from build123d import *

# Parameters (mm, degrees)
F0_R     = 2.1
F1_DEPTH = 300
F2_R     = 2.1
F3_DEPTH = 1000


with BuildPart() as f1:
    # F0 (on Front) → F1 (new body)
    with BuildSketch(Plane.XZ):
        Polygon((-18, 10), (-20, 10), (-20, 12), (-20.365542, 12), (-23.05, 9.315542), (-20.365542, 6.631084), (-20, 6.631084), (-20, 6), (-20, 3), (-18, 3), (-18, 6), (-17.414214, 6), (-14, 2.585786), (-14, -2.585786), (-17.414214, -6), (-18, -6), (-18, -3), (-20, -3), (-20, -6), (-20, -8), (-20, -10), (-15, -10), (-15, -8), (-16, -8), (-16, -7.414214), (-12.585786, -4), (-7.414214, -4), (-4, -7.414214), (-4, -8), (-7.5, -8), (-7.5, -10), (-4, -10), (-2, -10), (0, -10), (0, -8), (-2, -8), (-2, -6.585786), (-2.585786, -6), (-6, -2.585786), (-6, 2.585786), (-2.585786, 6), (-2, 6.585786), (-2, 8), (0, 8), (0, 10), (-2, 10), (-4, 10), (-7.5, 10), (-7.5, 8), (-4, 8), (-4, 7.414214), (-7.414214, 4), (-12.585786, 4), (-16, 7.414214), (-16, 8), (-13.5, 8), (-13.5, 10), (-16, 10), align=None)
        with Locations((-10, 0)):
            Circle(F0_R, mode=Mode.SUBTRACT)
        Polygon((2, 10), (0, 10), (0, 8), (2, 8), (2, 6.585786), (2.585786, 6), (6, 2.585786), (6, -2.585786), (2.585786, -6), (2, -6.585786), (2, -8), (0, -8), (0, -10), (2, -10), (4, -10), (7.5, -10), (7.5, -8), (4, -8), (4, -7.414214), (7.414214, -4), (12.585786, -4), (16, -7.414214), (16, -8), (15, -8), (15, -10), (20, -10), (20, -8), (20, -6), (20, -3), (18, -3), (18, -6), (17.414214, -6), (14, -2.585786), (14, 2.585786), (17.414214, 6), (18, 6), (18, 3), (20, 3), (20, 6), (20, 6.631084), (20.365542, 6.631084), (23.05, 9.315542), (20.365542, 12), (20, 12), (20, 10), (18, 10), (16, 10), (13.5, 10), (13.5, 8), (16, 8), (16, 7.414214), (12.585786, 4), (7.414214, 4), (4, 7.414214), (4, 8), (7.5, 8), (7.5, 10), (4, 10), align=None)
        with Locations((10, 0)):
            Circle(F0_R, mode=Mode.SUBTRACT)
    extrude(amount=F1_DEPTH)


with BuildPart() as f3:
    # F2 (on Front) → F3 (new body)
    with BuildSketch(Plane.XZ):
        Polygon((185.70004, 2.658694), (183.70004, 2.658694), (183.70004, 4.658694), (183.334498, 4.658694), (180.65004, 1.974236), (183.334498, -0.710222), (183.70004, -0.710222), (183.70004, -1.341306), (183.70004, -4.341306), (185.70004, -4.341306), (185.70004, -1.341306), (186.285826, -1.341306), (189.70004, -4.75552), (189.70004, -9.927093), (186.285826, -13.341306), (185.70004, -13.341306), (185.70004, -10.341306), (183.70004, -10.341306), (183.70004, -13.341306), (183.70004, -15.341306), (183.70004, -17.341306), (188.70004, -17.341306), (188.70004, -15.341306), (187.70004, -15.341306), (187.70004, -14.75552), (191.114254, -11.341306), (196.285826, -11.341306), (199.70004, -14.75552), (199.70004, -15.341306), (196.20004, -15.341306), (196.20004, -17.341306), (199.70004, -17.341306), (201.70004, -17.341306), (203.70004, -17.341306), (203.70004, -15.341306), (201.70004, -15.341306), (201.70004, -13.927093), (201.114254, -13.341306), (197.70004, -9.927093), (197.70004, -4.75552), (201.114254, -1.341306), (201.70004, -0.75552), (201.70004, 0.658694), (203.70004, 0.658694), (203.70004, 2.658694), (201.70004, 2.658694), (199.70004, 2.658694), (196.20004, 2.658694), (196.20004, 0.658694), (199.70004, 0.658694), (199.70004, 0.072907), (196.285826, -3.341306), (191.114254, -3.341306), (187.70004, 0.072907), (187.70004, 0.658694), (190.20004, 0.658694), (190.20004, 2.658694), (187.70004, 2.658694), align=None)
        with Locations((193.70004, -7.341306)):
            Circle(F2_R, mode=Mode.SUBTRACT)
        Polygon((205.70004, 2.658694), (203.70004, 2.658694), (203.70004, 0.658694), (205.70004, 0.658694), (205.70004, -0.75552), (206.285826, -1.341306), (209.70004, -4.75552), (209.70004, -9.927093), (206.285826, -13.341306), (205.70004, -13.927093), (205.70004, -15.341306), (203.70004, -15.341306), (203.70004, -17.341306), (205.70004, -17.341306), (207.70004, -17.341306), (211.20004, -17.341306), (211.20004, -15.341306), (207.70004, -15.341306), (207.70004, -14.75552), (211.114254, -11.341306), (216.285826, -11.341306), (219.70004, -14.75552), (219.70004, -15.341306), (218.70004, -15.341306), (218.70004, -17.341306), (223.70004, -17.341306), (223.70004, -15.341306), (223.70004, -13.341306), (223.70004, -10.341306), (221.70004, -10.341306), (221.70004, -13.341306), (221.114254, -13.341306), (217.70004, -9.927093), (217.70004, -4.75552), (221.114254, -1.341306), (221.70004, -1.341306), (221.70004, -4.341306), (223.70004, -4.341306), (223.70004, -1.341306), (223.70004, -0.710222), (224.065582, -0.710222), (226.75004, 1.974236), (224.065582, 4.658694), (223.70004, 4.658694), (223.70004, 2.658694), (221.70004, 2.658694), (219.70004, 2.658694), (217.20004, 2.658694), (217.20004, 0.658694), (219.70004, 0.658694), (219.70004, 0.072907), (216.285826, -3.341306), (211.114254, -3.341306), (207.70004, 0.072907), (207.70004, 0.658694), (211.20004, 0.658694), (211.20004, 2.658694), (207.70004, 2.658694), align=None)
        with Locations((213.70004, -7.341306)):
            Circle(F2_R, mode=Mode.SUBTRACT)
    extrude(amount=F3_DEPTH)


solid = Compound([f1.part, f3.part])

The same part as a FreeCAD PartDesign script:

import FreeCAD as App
import Part
import Sketcher

doc = App.newDocument("Part")
body = doc.addObject("PartDesign::Body", "Body")

# Sketch on XZ plane
sketch1 = doc.addObject("Sketcher::SketchObject", "Sketch")
body.addObject(sketch1)
sketch1.AttachmentSupport = (doc.XZ_Plane, [""])
sketch1.MapMode = "FlatFace"
sketch1.addGeometry([
    Part.LineSegment(App.Vector(-20, 10, 0), App.Vector(-20, 12, 0)),  # 0
    Part.LineSegment(App.Vector(-20, 12, 0), App.Vector(-20.37, 12, 0)),  # 1
    Part.LineSegment(App.Vector(-20.37, 12, 0), App.Vector(-23.05, 9.32, 0)),  # 2
    Part.LineSegment(App.Vector(-23.05, 9.32, 0), App.Vector(-20.37, 6.63, 0)),  # 3
    Part.LineSegment(App.Vector(-20.37, 6.63, 0), App.Vector(-20, 6.63, 0)),  # 4
    Part.LineSegment(App.Vector(-20, 6.63, 0), App.Vector(-20, 3, 0)),  # 5
    Part.LineSegment(App.Vector(-20, 3, 0), App.Vector(-18, 3, 0)),  # 6
    Part.LineSegment(App.Vector(-18, 3, 0), App.Vector(-18, 6, 0)),  # 7
    Part.LineSegment(App.Vector(-18, 6, 0), App.Vector(-17.41, 6, 0)),  # 8
    Part.LineSegment(App.Vector(-17.41, 6, 0), App.Vector(-14, 2.59, 0)),  # 9
    Part.LineSegment(App.Vector(-14, 2.59, 0), App.Vector(-14, -2.59, 0)),  # 10
    Part.LineSegment(App.Vector(-14, -2.59, 0), App.Vector(-17.41, -6, 0)),  # 11
    Part.LineSegment(App.Vector(-17.41, -6, 0), App.Vector(-18, -6, 0)),  # 12
    Part.LineSegment(App.Vector(-18, -6, 0), App.Vector(-18, -3, 0)),  # 13
    Part.LineSegment(App.Vector(-18, -3, 0), App.Vector(-20, -3, 0)),  # 14
    Part.LineSegment(App.Vector(-20, -3, 0), App.Vector(-20, -10, 0)),  # 15
    Part.LineSegment(App.Vector(-20, -10, 0), App.Vector(-15, -10, 0)),  # 16
    Part.LineSegment(App.Vector(-15, -10, 0), App.Vector(-15, -8, 0)),  # 17
    Part.LineSegment(App.Vector(-15, -8, 0), App.Vector(-16, -8, 0)),  # 18
    Part.LineSegment(App.Vector(-16, -8, 0), App.Vector(-16, -7.41, 0)),  # 19
    Part.LineSegment(App.Vector(-16, -7.41, 0), App.Vector(-12.59, -4, 0)),  # 20
    Part.LineSegment(App.Vector(-12.59, -4, 0), App.Vector(-7.41, -4, 0)),  # 21
    Part.LineSegment(App.Vector(-7.41, -4, 0), App.Vector(-4, -7.41, 0)),  # 22
    Part.LineSegment(App.Vector(-4, -7.41, 0), App.Vector(-4, -8, 0)),  # 23
    Part.LineSegment(App.Vector(-4, -8, 0), App.Vector(-7.5, -8, 0)),  # 24
    Part.LineSegment(App.Vector(-7.5, -8, 0), App.Vector(-7.5, -10, 0)),  # 25
    Part.LineSegment(App.Vector(-7.5, -10, 0), App.Vector(7.5, -10, 0)),  # 26
    Part.LineSegment(App.Vector(7.5, -10, 0), App.Vector(7.5, -8, 0)),  # 27
    Part.LineSegment(App.Vector(7.5, -8, 0), App.Vector(4, -8, 0)),  # 28
    Part.LineSegment(App.Vector(4, -8, 0), App.Vector(4, -7.41, 0)),  # 29
    Part.LineSegment(App.Vector(4, -7.41, 0), App.Vector(7.41, -4, 0)),  # 30
    Part.LineSegment(App.Vector(7.41, -4, 0), App.Vector(12.59, -4, 0)),  # 31
    Part.LineSegment(App.Vector(12.59, -4, 0), App.Vector(16, -7.41, 0)),  # 32
    Part.LineSegment(App.Vector(16, -7.41, 0), App.Vector(16, -8, 0)),  # 33
    Part.LineSegment(App.Vector(16, -8, 0), App.Vector(15, -8, 0)),  # 34
    Part.LineSegment(App.Vector(15, -8, 0), App.Vector(15, -10, 0)),  # 35
    Part.LineSegment(App.Vector(15, -10, 0), App.Vector(20, -10, 0)),  # 36
    Part.LineSegment(App.Vector(20, -10, 0), App.Vector(20, -3, 0)),  # 37
    Part.LineSegment(App.Vector(20, -3, 0), App.Vector(18, -3, 0)),  # 38
    Part.LineSegment(App.Vector(18, -3, 0), App.Vector(18, -6, 0)),  # 39
    Part.LineSegment(App.Vector(18, -6, 0), App.Vector(17.41, -6, 0)),  # 40
    Part.LineSegment(App.Vector(17.41, -6, 0), App.Vector(14, -2.59, 0)),  # 41
    Part.LineSegment(App.Vector(14, -2.59, 0), App.Vector(14, 2.59, 0)),  # 42
    Part.LineSegment(App.Vector(14, 2.59, 0), App.Vector(17.41, 6, 0)),  # 43
    Part.LineSegment(App.Vector(17.41, 6, 0), App.Vector(18, 6, 0)),  # 44
    Part.LineSegment(App.Vector(18, 6, 0), App.Vector(18, 3, 0)),  # 45
    Part.LineSegment(App.Vector(18, 3, 0), App.Vector(20, 3, 0)),  # 46
    Part.LineSegment(App.Vector(20, 3, 0), App.Vector(20, 6.63, 0)),  # 47
    Part.LineSegment(App.Vector(20, 6.63, 0), App.Vector(20.37, 6.63, 0)),  # 48
    Part.LineSegment(App.Vector(20.37, 6.63, 0), App.Vector(23.05, 9.32, 0)),  # 49
    Part.LineSegment(App.Vector(23.05, 9.32, 0), App.Vector(20.37, 12, 0)),  # 50
    Part.LineSegment(App.Vector(20.37, 12, 0), App.Vector(20, 12, 0)),  # 51
    Part.LineSegment(App.Vector(20, 12, 0), App.Vector(20, 10, 0)),  # 52
    Part.LineSegment(App.Vector(20, 10, 0), App.Vector(13.5, 10, 0)),  # 53
    Part.LineSegment(App.Vector(13.5, 10, 0), App.Vector(13.5, 8, 0)),  # 54
    Part.LineSegment(App.Vector(13.5, 8, 0), App.Vector(16, 8, 0)),  # 55
    Part.LineSegment(App.Vector(16, 8, 0), App.Vector(16, 7.41, 0)),  # 56
    Part.LineSegment(App.Vector(16, 7.41, 0), App.Vector(12.59, 4, 0)),  # 57
    Part.LineSegment(App.Vector(12.59, 4, 0), App.Vector(7.41, 4, 0)),  # 58
    Part.LineSegment(App.Vector(7.41, 4, 0), App.Vector(4, 7.41, 0)),  # 59
    Part.LineSegment(App.Vector(4, 7.41, 0), App.Vector(4, 8, 0)),  # 60
    Part.LineSegment(App.Vector(4, 8, 0), App.Vector(7.5, 8, 0)),  # 61
    Part.LineSegment(App.Vector(7.5, 8, 0), App.Vector(7.5, 10, 0)),  # 62
    Part.LineSegment(App.Vector(7.5, 10, 0), App.Vector(-7.5, 10, 0)),  # 63
    Part.LineSegment(App.Vector(-7.5, 10, 0), App.Vector(-7.5, 8, 0)),  # 64
    Part.LineSegment(App.Vector(-7.5, 8, 0), App.Vector(-4, 8, 0)),  # 65
    Part.LineSegment(App.Vector(-4, 8, 0), App.Vector(-4, 7.41, 0)),  # 66
    Part.LineSegment(App.Vector(-4, 7.41, 0), App.Vector(-7.41, 4, 0)),  # 67
    Part.LineSegment(App.Vector(-7.41, 4, 0), App.Vector(-12.59, 4, 0)),  # 68
    Part.LineSegment(App.Vector(-12.59, 4, 0), App.Vector(-16, 7.41, 0)),  # 69
    Part.LineSegment(App.Vector(-16, 7.41, 0), App.Vector(-16, 8, 0)),  # 70
    Part.LineSegment(App.Vector(-16, 8, 0), App.Vector(-13.5, 8, 0)),  # 71
    Part.LineSegment(App.Vector(-13.5, 8, 0), App.Vector(-13.5, 10, 0)),  # 72
    Part.LineSegment(App.Vector(-13.5, 10, 0), App.Vector(-20, 10, 0)),  # 73
    Part.Circle(App.Vector(-10, 0, 0), App.Vector(0, 0, 1), 2.1),  # 74
    Part.LineSegment(App.Vector(-2, 8, 0), App.Vector(2, 8, 0)),  # 75
    Part.LineSegment(App.Vector(2, 8, 0), App.Vector(2, 6.59, 0)),  # 76
    Part.LineSegment(App.Vector(2, 6.59, 0), App.Vector(6, 2.59, 0)),  # 77
    Part.LineSegment(App.Vector(6, 2.59, 0), App.Vector(6, -2.59, 0)),  # 78
    Part.LineSegment(App.Vector(6, -2.59, 0), App.Vector(2, -6.59, 0)),  # 79
    Part.LineSegment(App.Vector(2, -6.59, 0), App.Vector(2, -8, 0)),  # 80
    Part.LineSegment(App.Vector(2, -8, 0), App.Vector(-2, -8, 0)),  # 81
    Part.LineSegment(App.Vector(-2, -8, 0), App.Vector(-2, -6.59, 0)),  # 82
    Part.LineSegment(App.Vector(-2, -6.59, 0), App.Vector(-6, -2.59, 0)),  # 83
    Part.LineSegment(App.Vector(-6, -2.59, 0), App.Vector(-6, 2.59, 0)),  # 84
    Part.LineSegment(App.Vector(-6, 2.59, 0), App.Vector(-2, 6.59, 0)),  # 85
    Part.LineSegment(App.Vector(-2, 6.59, 0), App.Vector(-2, 8, 0)),  # 86
    Part.Circle(App.Vector(10, 0, 0), App.Vector(0, 0, 1), 2.1),  # 87
], False)
sketch1.addConstraint([
    Sketcher.Constraint("Coincident", 0, 2, 1, 1),
    Sketcher.Constraint("Coincident", 1, 2, 2, 1),
    Sketcher.Constraint("Coincident", 2, 2, 3, 1),
    Sketcher.Constraint("Coincident", 3, 2, 4, 1),
    Sketcher.Constraint("Coincident", 4, 2, 5, 1),
    Sketcher.Constraint("Coincident", 5, 2, 6, 1),
    Sketcher.Constraint("Coincident", 6, 2, 7, 1),
    Sketcher.Constraint("Coincident", 7, 2, 8, 1),
    Sketcher.Constraint("Coincident", 8, 2, 9, 1),
    Sketcher.Constraint("Coincident", 9, 2, 10, 1),
    Sketcher.Constraint("Coincident", 10, 2, 11, 1),
    Sketcher.Constraint("Coincident", 11, 2, 12, 1),
    Sketcher.Constraint("Coincident", 12, 2, 13, 1),
    Sketcher.Constraint("Coincident", 13, 2, 14, 1),
    Sketcher.Constraint("Coincident", 14, 2, 15, 1),
    Sketcher.Constraint("Coincident", 15, 2, 16, 1),
    Sketcher.Constraint("Coincident", 16, 2, 17, 1),
    Sketcher.Constraint("Coincident", 17, 2, 18, 1),
    Sketcher.Constraint("Coincident", 18, 2, 19, 1),
    Sketcher.Constraint("Coincident", 19, 2, 20, 1),
    Sketcher.Constraint("Coincident", 20, 2, 21, 1),
    Sketcher.Constraint("Coincident", 21, 2, 22, 1),
    Sketcher.Constraint("Coincident", 22, 2, 23, 1),
    Sketcher.Constraint("Coincident", 23, 2, 24, 1),
    Sketcher.Constraint("Coincident", 24, 2, 25, 1),
    Sketcher.Constraint("Coincident", 25, 2, 26, 1),
    Sketcher.Constraint("Coincident", 26, 2, 27, 1),
    Sketcher.Constraint("Coincident", 27, 2, 28, 1),
    Sketcher.Constraint("Coincident", 28, 2, 29, 1),
    Sketcher.Constraint("Coincident", 29, 2, 30, 1),
    Sketcher.Constraint("Coincident", 30, 2, 31, 1),
    Sketcher.Constraint("Coincident", 31, 2, 32, 1),
    Sketcher.Constraint("Coincident", 32, 2, 33, 1),
    Sketcher.Constraint("Coincident", 33, 2, 34, 1),
    Sketcher.Constraint("Coincident", 34, 2, 35, 1),
    Sketcher.Constraint("Coincident", 35, 2, 36, 1),
    Sketcher.Constraint("Coincident", 36, 2, 37, 1),
    Sketcher.Constraint("Coincident", 37, 2, 38, 1),
    Sketcher.Constraint("Coincident", 38, 2, 39, 1),
    Sketcher.Constraint("Coincident", 39, 2, 40, 1),
    Sketcher.Constraint("Coincident", 40, 2, 41, 1),
    Sketcher.Constraint("Coincident", 41, 2, 42, 1),
    Sketcher.Constraint("Coincident", 42, 2, 43, 1),
    Sketcher.Constraint("Coincident", 43, 2, 44, 1),
    Sketcher.Constraint("Coincident", 44, 2, 45, 1),
    Sketcher.Constraint("Coincident", 45, 2, 46, 1),
    Sketcher.Constraint("Coincident", 46, 2, 47, 1),
    Sketcher.Constraint("Coincident", 47, 2, 48, 1),
    Sketcher.Constraint("Coincident", 48, 2, 49, 1),
    Sketcher.Constraint("Coincident", 49, 2, 50, 1),
    Sketcher.Constraint("Coincident", 50, 2, 51, 1),
    Sketcher.Constraint("Coincident", 51, 2, 52, 1),
    Sketcher.Constraint("Coincident", 52, 2, 53, 1),
    Sketcher.Constraint("Coincident", 53, 2, 54, 1),
    Sketcher.Constraint("Coincident", 54, 2, 55, 1),
    Sketcher.Constraint("Coincident", 55, 2, 56, 1),
    Sketcher.Constraint("Coincident", 56, 2, 57, 1),
    Sketcher.Constraint("Coincident", 57, 2, 58, 1),
    Sketcher.Constraint("Coincident", 58, 2, 59, 1),
    Sketcher.Constraint("Coincident", 59, 2, 60, 1),
    Sketcher.Constraint("Coincident", 60, 2, 61, 1),
    Sketcher.Constraint("Coincident", 61, 2, 62, 1),
    Sketcher.Constraint("Coincident", 62, 2, 63, 1),
    Sketcher.Constraint("Coincident", 63, 2, 64, 1),
    Sketcher.Constraint("Coincident", 64, 2, 65, 1),
    Sketcher.Constraint("Coincident", 65, 2, 66, 1),
    Sketcher.Constraint("Coincident", 66, 2, 67, 1),
    Sketcher.Constraint("Coincident", 67, 2, 68, 1),
    Sketcher.Constraint("Coincident", 68, 2, 69, 1),
    Sketcher.Constraint("Coincident", 69, 2, 70, 1),
    Sketcher.Constraint("Coincident", 70, 2, 71, 1),
    Sketcher.Constraint("Coincident", 71, 2, 72, 1),
    Sketcher.Constraint("Coincident", 72, 2, 73, 1),
    Sketcher.Constraint("Coincident", 73, 2, 0, 1),
    Sketcher.Constraint("Coincident", 75, 2, 76, 1),
    Sketcher.Constraint("Coincident", 76, 2, 77, 1),
    Sketcher.Constraint("Coincident", 77, 2, 78, 1),
    Sketcher.Constraint("Coincident", 78, 2, 79, 1),
    Sketcher.Constraint("Coincident", 79, 2, 80, 1),
    Sketcher.Constraint("Coincident", 80, 2, 81, 1),
    Sketcher.Constraint("Coincident", 81, 2, 82, 1),
    Sketcher.Constraint("Coincident", 82, 2, 83, 1),
    Sketcher.Constraint("Coincident", 83, 2, 84, 1),
    Sketcher.Constraint("Coincident", 84, 2, 85, 1),
    Sketcher.Constraint("Coincident", 85, 2, 86, 1),
    Sketcher.Constraint("Coincident", 86, 2, 75, 1),
    Sketcher.Constraint("Vertical", 0),
    Sketcher.Constraint("Horizontal", 1),
    Sketcher.Constraint("Horizontal", 4),
    Sketcher.Constraint("Vertical", 5),
    Sketcher.Constraint("Horizontal", 6),
    Sketcher.Constraint("Vertical", 7),
    Sketcher.Constraint("Horizontal", 8),
    Sketcher.Constraint("Vertical", 10),
    Sketcher.Constraint("Horizontal", 12),
    Sketcher.Constraint("Vertical", 13),
    Sketcher.Constraint("Horizontal", 14),
    Sketcher.Constraint("Vertical", 15),
    Sketcher.Constraint("Horizontal", 16),
    Sketcher.Constraint("Vertical", 17),
    Sketcher.Constraint("Horizontal", 18),
    Sketcher.Constraint("Vertical", 19),
    Sketcher.Constraint("Horizontal", 21),
    Sketcher.Constraint("Vertical", 23),
    Sketcher.Constraint("Horizontal", 24),
    Sketcher.Constraint("Vertical", 25),
    Sketcher.Constraint("Horizontal", 26),
    Sketcher.Constraint("Vertical", 27),
    Sketcher.Constraint("Horizontal", 28),
    Sketcher.Constraint("Vertical", 29),
    Sketcher.Constraint("Horizontal", 31),
    Sketcher.Constraint("Vertical", 33),
    Sketcher.Constraint("Horizontal", 34),
    Sketcher.Constraint("Vertical", 35),
    Sketcher.Constraint("Horizontal", 36),
    Sketcher.Constraint("Vertical", 37),
    Sketcher.Constraint("Horizontal", 38),
    Sketcher.Constraint("Vertical", 39),
    Sketcher.Constraint("Horizontal", 40),
    Sketcher.Constraint("Vertical", 42),
    Sketcher.Constraint("Horizontal", 44),
    Sketcher.Constraint("Vertical", 45),
    Sketcher.Constraint("Horizontal", 46),
    Sketcher.Constraint("Vertical", 47),
    Sketcher.Constraint("Horizontal", 48),
    Sketcher.Constraint("Horizontal", 51),
    Sketcher.Constraint("Vertical", 52),
    Sketcher.Constraint("Horizontal", 53),
    Sketcher.Constraint("Vertical", 54),
    Sketcher.Constraint("Horizontal", 55),
    Sketcher.Constraint("Vertical", 56),
    Sketcher.Constraint("Horizontal", 58),
    Sketcher.Constraint("Vertical", 60),
    Sketcher.Constraint("Horizontal", 61),
    Sketcher.Constraint("Vertical", 62),
    Sketcher.Constraint("Horizontal", 63),
    Sketcher.Constraint("Vertical", 64),
    Sketcher.Constraint("Horizontal", 65),
    Sketcher.Constraint("Vertical", 66),
    Sketcher.Constraint("Horizontal", 68),
    Sketcher.Constraint("Vertical", 70),
    Sketcher.Constraint("Horizontal", 71),
    Sketcher.Constraint("Vertical", 72),
    Sketcher.Constraint("Horizontal", 73),
    Sketcher.Constraint("Horizontal", 75),
    Sketcher.Constraint("Vertical", 76),
    Sketcher.Constraint("Vertical", 78),
    Sketcher.Constraint("Vertical", 80),
    Sketcher.Constraint("Horizontal", 81),
    Sketcher.Constraint("Vertical", 82),
    Sketcher.Constraint("Vertical", 84),
    Sketcher.Constraint("Vertical", 86),
    Sketcher.Constraint("Equal", 74, 87),
    Sketcher.Constraint("Symmetric", 74, 3, 87, 3, -1, 1),
    Sketcher.Constraint("Symmetric", 5, 2, 37, 2, -1, 1),
    Sketcher.Constraint("Symmetric", 7, 2, 39, 2, -1, 1),
    Sketcher.Constraint("Symmetric", 9, 2, 41, 2, -1, 1),
    Sketcher.Constraint("Symmetric", 11, 2, 43, 2, -1, 1),
    Sketcher.Constraint("Symmetric", 13, 2, 45, 2, -1, 1),
    Sketcher.Constraint("Symmetric", 15, 2, 52, 2, -1, 1),
    Sketcher.Constraint("Symmetric", 18, 2, 55, 2, -1, 1),
    Sketcher.Constraint("Symmetric", 20, 2, 57, 2, -1, 1),
    Sketcher.Constraint("Symmetric", 22, 2, 59, 2, -1, 1),
    Sketcher.Constraint("Symmetric", 24, 2, 61, 2, -1, 1),
    Sketcher.Constraint("Symmetric", 26, 2, 63, 2, -1, 1),
    Sketcher.Constraint("Symmetric", 28, 2, 65, 2, -1, 1),
    Sketcher.Constraint("Symmetric", 30, 2, 67, 2, -1, 1),
    Sketcher.Constraint("Symmetric", 32, 2, 69, 2, -1, 1),
    Sketcher.Constraint("Symmetric", 36, 2, 73, 2, -1, 1),
    Sketcher.Constraint("Symmetric", 75, 2, 81, 2, -1, 1),
    Sketcher.Constraint("Symmetric", 77, 2, 83, 2, -1, 1),
    Sketcher.Constraint("Symmetric", 79, 2, 85, 2, -1, 1),
    Sketcher.Constraint("Symmetric", 24, 2, 27, 2, -2),
    Sketcher.Constraint("Symmetric", 22, 2, 29, 2, -2),
    Sketcher.Constraint("Symmetric", 21, 2, 30, 2, -2),
    Sketcher.Constraint("Symmetric", 19, 2, 32, 2, -2),
    Sketcher.Constraint("Symmetric", 17, 2, 34, 2, -2),
    Sketcher.Constraint("Symmetric", 15, 2, 36, 2, -2),
    Sketcher.Constraint("Symmetric", 13, 2, 38, 2, -2),
    Sketcher.Constraint("Symmetric", 11, 2, 40, 2, -2),
    Sketcher.Constraint("Symmetric", 4, 2, 47, 2, -2),
    Sketcher.Constraint("Symmetric", 2, 2, 49, 2, -2),
    Sketcher.Constraint("Symmetric", 1, 2, 50, 2, -2),
    Sketcher.Constraint("Symmetric", 54, 2, 71, 2, -2),
    Sketcher.Constraint("Symmetric", 79, 2, 82, 2, -2),
    Sketcher.Constraint("PointOnObject", 74, 3, -1),
    Sketcher.Constraint("Perpendicular", 2, 3),
    Sketcher.Constraint("Parallel", 3, 9),
    Sketcher.Constraint("Perpendicular", 9, 11),
    Sketcher.Constraint("Parallel", 11, 20),
    Sketcher.Constraint("Perpendicular", 20, 22),
    Sketcher.Constraint("Perpendicular", 22, 30),
    Sketcher.Constraint("Perpendicular", 30, 32),
    Sketcher.Constraint("Parallel", 32, 41),
    Sketcher.Constraint("Perpendicular", 41, 43),
    Sketcher.Constraint("Parallel", 43, 49),
    Sketcher.Constraint("Perpendicular", 50, 57),
    Sketcher.Constraint("Perpendicular", 57, 59),
    Sketcher.Constraint("Perpendicular", 59, 67),
    Sketcher.Constraint("Perpendicular", 67, 69),
    Sketcher.Constraint("Parallel", 69, 77),
    Sketcher.Constraint("Perpendicular", 77, 79),
    Sketcher.Constraint("Perpendicular", 79, 83),
    Sketcher.Constraint("Perpendicular", 83, 85),
    Sketcher.Constraint("Horizontal", 19, 2, 22, 2),
    Sketcher.Constraint("Horizontal", 18, 2, 23, 2),
    Sketcher.Constraint("Horizontal", 16, 2, 25, 2),
    Sketcher.Constraint("Horizontal", 71, 2, 75, 2),
    Sketcher.Constraint("Horizontal", 42, 2, 77, 2),
    Sketcher.Constraint("Vertical", 1, 2, 3, 2),
    Sketcher.Constraint("Equal", 46, 0),
    Sketcher.Constraint("Equal", 68, 10),
    Sketcher.Constraint("Equal", 0, 17),
    Sketcher.Constraint("Equal", 44, 19),
    Sketcher.Constraint("Equal", 11, 20),
    Sketcher.Constraint("Diameter", 74, 4.2),
    Sketcher.Constraint("DistanceX", 6, 1, 6, 2, 2.0),
    Sketcher.Constraint("DistanceX", 16, 1, 16, 2, 5.0),
    Sketcher.Constraint("DistanceX", 18, 2, 18, 1, 1.0),
    Sketcher.Constraint("DistanceX", 26, 1, 26, 2, 15.0),
    Sketcher.Constraint("DistanceX", 75, 1, 75, 2, 4.0),
    Sketcher.Constraint("DistanceY", 7, 1, 7, 2, 3.0),
    Sketcher.Constraint("DistanceY", 15, 2, 15, 1, 7.0),
    Sketcher.Constraint("DistanceX", 24, 2, 24, 1, 3.5),
    Sketcher.Constraint("DistanceX", 53, 2, 53, 1, 6.5),
    Sketcher.Constraint("DistanceX", 74, 3, -1, 1, 10.0),
    Sketcher.Constraint("DistanceX", 0, 2, -1, 1, 20.0),
    Sketcher.Constraint("DistanceX", 9, 2, -1, 1, 14.0),
    Sketcher.Constraint("DistanceX", -1, 1, 77, 2, 6.0),
    Sketcher.Constraint("DistanceX", 2, 2, -1, 1, 23.05),
    Sketcher.Constraint("DistanceX", 1, 2, 1, 1, 0.365542),
    Sketcher.Constraint("DistanceX", 8, 1, 8, 2, 0.585786),
])
pad1 = doc.addObject("PartDesign::Pad", "Pad")
body.addObject(pad1)
pad1.Profile = sketch1
pad1.Length = 300
body2 = doc.addObject("PartDesign::Body", "Body001")

# Sketch on XZ plane
sketch2 = doc.addObject("Sketcher::SketchObject", "Sketch001")
body2.addObject(sketch2)
sketch2.AttachmentSupport = (doc.getObject("XZ_Plane001"), [""])
sketch2.MapMode = "FlatFace"
sketch2.addGeometry([
    Part.LineSegment(App.Vector(183.7, 2.66, 0), App.Vector(183.7, 4.66, 0)),  # 0
    Part.LineSegment(App.Vector(183.7, 4.66, 0), App.Vector(183.33, 4.66, 0)),  # 1
    Part.LineSegment(App.Vector(183.33, 4.66, 0), App.Vector(180.65, 1.97, 0)),  # 2
    Part.LineSegment(App.Vector(180.65, 1.97, 0), App.Vector(183.33, -0.71, 0)),  # 3
    Part.LineSegment(App.Vector(183.33, -0.71, 0), App.Vector(183.7, -0.71, 0)),  # 4
    Part.LineSegment(App.Vector(183.7, -0.71, 0), App.Vector(183.7, -4.34, 0)),  # 5
    Part.LineSegment(App.Vector(183.7, -4.34, 0), App.Vector(185.7, -4.34, 0)),  # 6
    Part.LineSegment(App.Vector(185.7, -4.34, 0), App.Vector(185.7, -1.34, 0)),  # 7
    Part.LineSegment(App.Vector(185.7, -1.34, 0), App.Vector(186.29, -1.34, 0)),  # 8
    Part.LineSegment(App.Vector(186.29, -1.34, 0), App.Vector(189.7, -4.76, 0)),  # 9
    Part.LineSegment(App.Vector(189.7, -4.76, 0), App.Vector(189.7, -9.93, 0)),  # 10
    Part.LineSegment(App.Vector(189.7, -9.93, 0), App.Vector(186.29, -13.34, 0)),  # 11
    Part.LineSegment(App.Vector(186.29, -13.34, 0), App.Vector(185.7, -13.34, 0)),  # 12
    Part.LineSegment(App.Vector(185.7, -13.34, 0), App.Vector(185.7, -10.34, 0)),  # 13
    Part.LineSegment(App.Vector(185.7, -10.34, 0), App.Vector(183.7, -10.34, 0)),  # 14
    Part.LineSegment(App.Vector(183.7, -10.34, 0), App.Vector(183.7, -17.34, 0)),  # 15
    Part.LineSegment(App.Vector(183.7, -17.34, 0), App.Vector(188.7, -17.34, 0)),  # 16
    Part.LineSegment(App.Vector(188.7, -17.34, 0), App.Vector(188.7, -15.34, 0)),  # 17
    Part.LineSegment(App.Vector(188.7, -15.34, 0), App.Vector(187.7, -15.34, 0)),  # 18
    Part.LineSegment(App.Vector(187.7, -15.34, 0), App.Vector(187.7, -14.76, 0)),  # 19
    Part.LineSegment(App.Vector(187.7, -14.76, 0), App.Vector(191.11, -11.34, 0)),  # 20
    Part.LineSegment(App.Vector(191.11, -11.34, 0), App.Vector(196.29, -11.34, 0)),  # 21
    Part.LineSegment(App.Vector(196.29, -11.34, 0), App.Vector(199.7, -14.76, 0)),  # 22
    Part.LineSegment(App.Vector(199.7, -14.76, 0), App.Vector(199.7, -15.34, 0)),  # 23
    Part.LineSegment(App.Vector(199.7, -15.34, 0), App.Vector(196.2, -15.34, 0)),  # 24
    Part.LineSegment(App.Vector(196.2, -15.34, 0), App.Vector(196.2, -17.34, 0)),  # 25
    Part.LineSegment(App.Vector(196.2, -17.34, 0), App.Vector(211.2, -17.34, 0)),  # 26
    Part.LineSegment(App.Vector(211.2, -17.34, 0), App.Vector(211.2, -15.34, 0)),  # 27
    Part.LineSegment(App.Vector(211.2, -15.34, 0), App.Vector(207.7, -15.34, 0)),  # 28
    Part.LineSegment(App.Vector(207.7, -15.34, 0), App.Vector(207.7, -14.76, 0)),  # 29
    Part.LineSegment(App.Vector(207.7, -14.76, 0), App.Vector(211.11, -11.34, 0)),  # 30
    Part.LineSegment(App.Vector(211.11, -11.34, 0), App.Vector(216.29, -11.34, 0)),  # 31
    Part.LineSegment(App.Vector(216.29, -11.34, 0), App.Vector(219.7, -14.76, 0)),  # 32
    Part.LineSegment(App.Vector(219.7, -14.76, 0), App.Vector(219.7, -15.34, 0)),  # 33
    Part.LineSegment(App.Vector(219.7, -15.34, 0), App.Vector(218.7, -15.34, 0)),  # 34
    Part.LineSegment(App.Vector(218.7, -15.34, 0), App.Vector(218.7, -17.34, 0)),  # 35
    Part.LineSegment(App.Vector(218.7, -17.34, 0), App.Vector(223.7, -17.34, 0)),  # 36
    Part.LineSegment(App.Vector(223.7, -17.34, 0), App.Vector(223.7, -10.34, 0)),  # 37
    Part.LineSegment(App.Vector(223.7, -10.34, 0), App.Vector(221.7, -10.34, 0)),  # 38
    Part.LineSegment(App.Vector(221.7, -10.34, 0), App.Vector(221.7, -13.34, 0)),  # 39
    Part.LineSegment(App.Vector(221.7, -13.34, 0), App.Vector(221.11, -13.34, 0)),  # 40
    Part.LineSegment(App.Vector(221.11, -13.34, 0), App.Vector(217.7, -9.93, 0)),  # 41
    Part.LineSegment(App.Vector(217.7, -9.93, 0), App.Vector(217.7, -4.76, 0)),  # 42
    Part.LineSegment(App.Vector(217.7, -4.76, 0), App.Vector(221.11, -1.34, 0)),  # 43
    Part.LineSegment(App.Vector(221.11, -1.34, 0), App.Vector(221.7, -1.34, 0)),  # 44
    Part.LineSegment(App.Vector(221.7, -1.34, 0), App.Vector(221.7, -4.34, 0)),  # 45
    Part.LineSegment(App.Vector(221.7, -4.34, 0), App.Vector(223.7, -4.34, 0)),  # 46
    Part.LineSegment(App.Vector(223.7, -4.34, 0), App.Vector(223.7, -0.71, 0)),  # 47
    Part.LineSegment(App.Vector(223.7, -0.71, 0), App.Vector(224.07, -0.71, 0)),  # 48
    Part.LineSegment(App.Vector(224.07, -0.71, 0), App.Vector(226.75, 1.97, 0)),  # 49
    Part.LineSegment(App.Vector(226.75, 1.97, 0), App.Vector(224.07, 4.66, 0)),  # 50
    Part.LineSegment(App.Vector(224.07, 4.66, 0), App.Vector(223.7, 4.66, 0)),  # 51
    Part.LineSegment(App.Vector(223.7, 4.66, 0), App.Vector(223.7, 2.66, 0)),  # 52
    Part.LineSegment(App.Vector(223.7, 2.66, 0), App.Vector(217.2, 2.66, 0)),  # 53
    Part.LineSegment(App.Vector(217.2, 2.66, 0), App.Vector(217.2, 0.66, 0)),  # 54
    Part.LineSegment(App.Vector(217.2, 0.66, 0), App.Vector(219.7, 0.66, 0)),  # 55
    Part.LineSegment(App.Vector(219.7, 0.66, 0), App.Vector(219.7, 0.07, 0)),  # 56
    Part.LineSegment(App.Vector(219.7, 0.07, 0), App.Vector(216.29, -3.34, 0)),  # 57
    Part.LineSegment(App.Vector(216.29, -3.34, 0), App.Vector(211.11, -3.34, 0)),  # 58
    Part.LineSegment(App.Vector(211.11, -3.34, 0), App.Vector(207.7, 0.07, 0)),  # 59
    Part.LineSegment(App.Vector(207.7, 0.07, 0), App.Vector(207.7, 0.66, 0)),  # 60
    Part.LineSegment(App.Vector(207.7, 0.66, 0), App.Vector(211.2, 0.66, 0)),  # 61
    Part.LineSegment(App.Vector(211.2, 0.66, 0), App.Vector(211.2, 2.66, 0)),  # 62
    Part.LineSegment(App.Vector(211.2, 2.66, 0), App.Vector(196.2, 2.66, 0)),  # 63
    Part.LineSegment(App.Vector(196.2, 2.66, 0), App.Vector(196.2, 0.66, 0)),  # 64
    Part.LineSegment(App.Vector(196.2, 0.66, 0), App.Vector(199.7, 0.66, 0)),  # 65
    Part.LineSegment(App.Vector(199.7, 0.66, 0), App.Vector(199.7, 0.07, 0)),  # 66
    Part.LineSegment(App.Vector(199.7, 0.07, 0), App.Vector(196.29, -3.34, 0)),  # 67
    Part.LineSegment(App.Vector(196.29, -3.34, 0), App.Vector(191.11, -3.34, 0)),  # 68
    Part.LineSegment(App.Vector(191.11, -3.34, 0), App.Vector(187.7, 0.07, 0)),  # 69
    Part.LineSegment(App.Vector(187.7, 0.07, 0), App.Vector(187.7, 0.66, 0)),  # 70
    Part.LineSegment(App.Vector(187.7, 0.66, 0), App.Vector(190.2, 0.66, 0)),  # 71
    Part.LineSegment(App.Vector(190.2, 0.66, 0), App.Vector(190.2, 2.66, 0)),  # 72
    Part.LineSegment(App.Vector(190.2, 2.66, 0), App.Vector(183.7, 2.66, 0)),  # 73
    Part.Circle(App.Vector(193.7, -7.34, 0), App.Vector(0, 0, 1), 2.1),  # 74
    Part.LineSegment(App.Vector(201.7, 0.66, 0), App.Vector(205.7, 0.66, 0)),  # 75
    Part.LineSegment(App.Vector(205.7, 0.66, 0), App.Vector(205.7, -0.76, 0)),  # 76
    Part.LineSegment(App.Vector(205.7, -0.76, 0), App.Vector(209.7, -4.76, 0)),  # 77
    Part.LineSegment(App.Vector(209.7, -4.76, 0), App.Vector(209.7, -9.93, 0)),  # 78
    Part.LineSegment(App.Vector(209.7, -9.93, 0), App.Vector(206.29, -13.34, 0)),  # 79
    Part.LineSegment(App.Vector(206.29, -13.34, 0), App.Vector(205.7, -13.93, 0)),  # 80
    Part.LineSegment(App.Vector(205.7, -13.93, 0), App.Vector(205.7, -15.34, 0)),  # 81
    Part.LineSegment(App.Vector(205.7, -15.34, 0), App.Vector(201.7, -15.34, 0)),  # 82
    Part.LineSegment(App.Vector(201.7, -15.34, 0), App.Vector(201.7, -13.93, 0)),  # 83
    Part.LineSegment(App.Vector(201.7, -13.93, 0), App.Vector(201.11, -13.34, 0)),  # 84
    Part.LineSegment(App.Vector(201.11, -13.34, 0), App.Vector(197.7, -9.93, 0)),  # 85
    Part.LineSegment(App.Vector(197.7, -9.93, 0), App.Vector(197.7, -4.76, 0)),  # 86
    Part.LineSegment(App.Vector(197.7, -4.76, 0), App.Vector(201.7, -0.76, 0)),  # 87
    Part.LineSegment(App.Vector(201.7, -0.76, 0), App.Vector(201.7, 0.66, 0)),  # 88
    Part.Circle(App.Vector(213.7, -7.34, 0), App.Vector(0, 0, 1), 2.1),  # 89
], False)
sketch2.addConstraint([
    Sketcher.Constraint("Coincident", 0, 2, 1, 1),
    Sketcher.Constraint("Coincident", 1, 2, 2, 1),
    Sketcher.Constraint("Coincident", 2, 2, 3, 1),
    Sketcher.Constraint("Coincident", 3, 2, 4, 1),
    Sketcher.Constraint("Coincident", 4, 2, 5, 1),
    Sketcher.Constraint("Coincident", 5, 2, 6, 1),
    Sketcher.Constraint("Coincident", 6, 2, 7, 1),
    Sketcher.Constraint("Coincident", 7, 2, 8, 1),
    Sketcher.Constraint("Coincident", 8, 2, 9, 1),
    Sketcher.Constraint("Coincident", 9, 2, 10, 1),
    Sketcher.Constraint("Coincident", 10, 2, 11, 1),
    Sketcher.Constraint("Coincident", 11, 2, 12, 1),
    Sketcher.Constraint("Coincident", 12, 2, 13, 1),
    Sketcher.Constraint("Coincident", 13, 2, 14, 1),
    Sketcher.Constraint("Coincident", 14, 2, 15, 1),
    Sketcher.Constraint("Coincident", 15, 2, 16, 1),
    Sketcher.Constraint("Coincident", 16, 2, 17, 1),
    Sketcher.Constraint("Coincident", 17, 2, 18, 1),
    Sketcher.Constraint("Coincident", 18, 2, 19, 1),
    Sketcher.Constraint("Coincident", 19, 2, 20, 1),
    Sketcher.Constraint("Coincident", 20, 2, 21, 1),
    Sketcher.Constraint("Coincident", 21, 2, 22, 1),
    Sketcher.Constraint("Coincident", 22, 2, 23, 1),
    Sketcher.Constraint("Coincident", 23, 2, 24, 1),
    Sketcher.Constraint("Coincident", 24, 2, 25, 1),
    Sketcher.Constraint("Coincident", 25, 2, 26, 1),
    Sketcher.Constraint("Coincident", 26, 2, 27, 1),
    Sketcher.Constraint("Coincident", 27, 2, 28, 1),
    Sketcher.Constraint("Coincident", 28, 2, 29, 1),
    Sketcher.Constraint("Coincident", 29, 2, 30, 1),
    Sketcher.Constraint("Coincident", 30, 2, 31, 1),
    Sketcher.Constraint("Coincident", 31, 2, 32, 1),
    Sketcher.Constraint("Coincident", 32, 2, 33, 1),
    Sketcher.Constraint("Coincident", 33, 2, 34, 1),
    Sketcher.Constraint("Coincident", 34, 2, 35, 1),
    Sketcher.Constraint("Coincident", 35, 2, 36, 1),
    Sketcher.Constraint("Coincident", 36, 2, 37, 1),
    Sketcher.Constraint("Coincident", 37, 2, 38, 1),
    Sketcher.Constraint("Coincident", 38, 2, 39, 1),
    Sketcher.Constraint("Coincident", 39, 2, 40, 1),
    Sketcher.Constraint("Coincident", 40, 2, 41, 1),
    Sketcher.Constraint("Coincident", 41, 2, 42, 1),
    Sketcher.Constraint("Coincident", 42, 2, 43, 1),
    Sketcher.Constraint("Coincident", 43, 2, 44, 1),
    Sketcher.Constraint("Coincident", 44, 2, 45, 1),
    Sketcher.Constraint("Coincident", 45, 2, 46, 1),
    Sketcher.Constraint("Coincident", 46, 2, 47, 1),
    Sketcher.Constraint("Coincident", 47, 2, 48, 1),
    Sketcher.Constraint("Coincident", 48, 2, 49, 1),
    Sketcher.Constraint("Coincident", 49, 2, 50, 1),
    Sketcher.Constraint("Coincident", 50, 2, 51, 1),
    Sketcher.Constraint("Coincident", 51, 2, 52, 1),
    Sketcher.Constraint("Coincident", 52, 2, 53, 1),
    Sketcher.Constraint("Coincident", 53, 2, 54, 1),
    Sketcher.Constraint("Coincident", 54, 2, 55, 1),
    Sketcher.Constraint("Coincident", 55, 2, 56, 1),
    Sketcher.Constraint("Coincident", 56, 2, 57, 1),
    Sketcher.Constraint("Coincident", 57, 2, 58, 1),
    Sketcher.Constraint("Coincident", 58, 2, 59, 1),
    Sketcher.Constraint("Coincident", 59, 2, 60, 1),
    Sketcher.Constraint("Coincident", 60, 2, 61, 1),
    Sketcher.Constraint("Coincident", 61, 2, 62, 1),
    Sketcher.Constraint("Coincident", 62, 2, 63, 1),
    Sketcher.Constraint("Coincident", 63, 2, 64, 1),
    Sketcher.Constraint("Coincident", 64, 2, 65, 1),
    Sketcher.Constraint("Coincident", 65, 2, 66, 1),
    Sketcher.Constraint("Coincident", 66, 2, 67, 1),
    Sketcher.Constraint("Coincident", 67, 2, 68, 1),
    Sketcher.Constraint("Coincident", 68, 2, 69, 1),
    Sketcher.Constraint("Coincident", 69, 2, 70, 1),
    Sketcher.Constraint("Coincident", 70, 2, 71, 1),
    Sketcher.Constraint("Coincident", 71, 2, 72, 1),
    Sketcher.Constraint("Coincident", 72, 2, 73, 1),
    Sketcher.Constraint("Coincident", 73, 2, 0, 1),
    Sketcher.Constraint("Coincident", 75, 2, 76, 1),
    Sketcher.Constraint("Coincident", 76, 2, 77, 1),
    Sketcher.Constraint("Coincident", 77, 2, 78, 1),
    Sketcher.Constraint("Coincident", 78, 2, 79, 1),
    Sketcher.Constraint("Coincident", 79, 2, 80, 1),
    Sketcher.Constraint("Coincident", 80, 2, 81, 1),
    Sketcher.Constraint("Coincident", 81, 2, 82, 1),
    Sketcher.Constraint("Coincident", 82, 2, 83, 1),
    Sketcher.Constraint("Coincident", 83, 2, 84, 1),
    Sketcher.Constraint("Coincident", 84, 2, 85, 1),
    Sketcher.Constraint("Coincident", 85, 2, 86, 1),
    Sketcher.Constraint("Coincident", 86, 2, 87, 1),
    Sketcher.Constraint("Coincident", 87, 2, 88, 1),
    Sketcher.Constraint("Coincident", 88, 2, 75, 1),
    Sketcher.Constraint("Vertical", 0),
    Sketcher.Constraint("Horizontal", 1),
    Sketcher.Constraint("Horizontal", 4),
    Sketcher.Constraint("Vertical", 5),
    Sketcher.Constraint("Horizontal", 6),
    Sketcher.Constraint("Vertical", 7),
    Sketcher.Constraint("Horizontal", 8),
    Sketcher.Constraint("Vertical", 10),
    Sketcher.Constraint("Horizontal", 12),
    Sketcher.Constraint("Vertical", 13),
    Sketcher.Constraint("Horizontal", 14),
    Sketcher.Constraint("Vertical", 15),
    Sketcher.Constraint("Horizontal", 16),
    Sketcher.Constraint("Vertical", 17),
    Sketcher.Constraint("Horizontal", 18),
    Sketcher.Constraint("Vertical", 19),
    Sketcher.Constraint("Horizontal", 21),
    Sketcher.Constraint("Vertical", 23),
    Sketcher.Constraint("Horizontal", 24),
    Sketcher.Constraint("Vertical", 25),
    Sketcher.Constraint("Horizontal", 26),
    Sketcher.Constraint("Vertical", 27),
    Sketcher.Constraint("Horizontal", 28),
    Sketcher.Constraint("Vertical", 29),
    Sketcher.Constraint("Horizontal", 31),
    Sketcher.Constraint("Vertical", 33),
    Sketcher.Constraint("Horizontal", 34),
    Sketcher.Constraint("Vertical", 35),
    Sketcher.Constraint("Horizontal", 36),
    Sketcher.Constraint("Vertical", 37),
    Sketcher.Constraint("Horizontal", 38),
    Sketcher.Constraint("Vertical", 39),
    Sketcher.Constraint("Horizontal", 40),
    Sketcher.Constraint("Vertical", 42),
    Sketcher.Constraint("Horizontal", 44),
    Sketcher.Constraint("Vertical", 45),
    Sketcher.Constraint("Horizontal", 46),
    Sketcher.Constraint("Vertical", 47),
    Sketcher.Constraint("Horizontal", 48),
    Sketcher.Constraint("Horizontal", 51),
    Sketcher.Constraint("Vertical", 52),
    Sketcher.Constraint("Horizontal", 53),
    Sketcher.Constraint("Vertical", 54),
    Sketcher.Constraint("Horizontal", 55),
    Sketcher.Constraint("Vertical", 56),
    Sketcher.Constraint("Horizontal", 58),
    Sketcher.Constraint("Vertical", 60),
    Sketcher.Constraint("Horizontal", 61),
    Sketcher.Constraint("Vertical", 62),
    Sketcher.Constraint("Horizontal", 63),
    Sketcher.Constraint("Vertical", 64),
    Sketcher.Constraint("Horizontal", 65),
    Sketcher.Constraint("Vertical", 66),
    Sketcher.Constraint("Horizontal", 68),
    Sketcher.Constraint("Vertical", 70),
    Sketcher.Constraint("Horizontal", 71),
    Sketcher.Constraint("Vertical", 72),
    Sketcher.Constraint("Horizontal", 73),
    Sketcher.Constraint("Horizontal", 75),
    Sketcher.Constraint("Vertical", 76),
    Sketcher.Constraint("Vertical", 78),
    Sketcher.Constraint("Vertical", 81),
    Sketcher.Constraint("Horizontal", 82),
    Sketcher.Constraint("Vertical", 83),
    Sketcher.Constraint("Vertical", 86),
    Sketcher.Constraint("Vertical", 88),
    Sketcher.Constraint("Equal", 74, 89),
    Sketcher.Constraint("Perpendicular", 2, 3),
    Sketcher.Constraint("Parallel", 3, 9),
    Sketcher.Constraint("Perpendicular", 9, 11),
    Sketcher.Constraint("Parallel", 11, 20),
    Sketcher.Constraint("Perpendicular", 20, 22),
    Sketcher.Constraint("Perpendicular", 22, 30),
    Sketcher.Constraint("Perpendicular", 30, 32),
    Sketcher.Constraint("Parallel", 32, 41),
    Sketcher.Constraint("Perpendicular", 41, 43),
    Sketcher.Constraint("Parallel", 43, 49),
    Sketcher.Constraint("Perpendicular", 49, 50),
    Sketcher.Constraint("Perpendicular", 50, 57),
    Sketcher.Constraint("Perpendicular", 57, 59),
    Sketcher.Constraint("Perpendicular", 59, 67),
    Sketcher.Constraint("Perpendicular", 67, 69),
    Sketcher.Constraint("Parallel", 69, 77),
    Sketcher.Constraint("Perpendicular", 77, 79),
    Sketcher.Constraint("Parallel", 79, 80),
    Sketcher.Constraint("Perpendicular", 80, 84),
    Sketcher.Constraint("Parallel", 84, 85),
    Sketcher.Constraint("Perpendicular", 85, 87),
    Sketcher.Constraint("Horizontal", 74, 3, 89, 3),
    Sketcher.Constraint("Horizontal", 19, 2, 22, 2),
    Sketcher.Constraint("Horizontal", 18, 2, 23, 2),
    Sketcher.Constraint("Horizontal", 16, 2, 25, 2),
    Sketcher.Constraint("Horizontal", 24, 2, 27, 2),
    Sketcher.Constraint("Horizontal", 22, 2, 29, 2),
    Sketcher.Constraint("Horizontal", 21, 2, 30, 2),
    Sketcher.Constraint("Horizontal", 29, 2, 32, 2),
    Sketcher.Constraint("Horizontal", 28, 2, 33, 2),
    Sketcher.Constraint("Horizontal", 26, 2, 35, 2),
    Sketcher.Constraint("Horizontal", 14, 2, 37, 2),
    Sketcher.Constraint("Horizontal", 12, 2, 39, 2),
    Sketcher.Constraint("Horizontal", 10, 2, 41, 2),
    Sketcher.Constraint("Horizontal", 9, 2, 42, 2),
    Sketcher.Constraint("Horizontal", 8, 2, 43, 2),
    Sketcher.Constraint("Horizontal", 6, 2, 45, 2),
    Sketcher.Constraint("Horizontal", 4, 2, 47, 2),
    Sketcher.Constraint("Horizontal", 2, 2, 49, 2),
    Sketcher.Constraint("Horizontal", 1, 2, 50, 2),
    Sketcher.Constraint("Horizontal", 56, 2, 59, 2),
    Sketcher.Constraint("Horizontal", 55, 2, 60, 2),
    Sketcher.Constraint("Horizontal", 53, 2, 62, 2),
    Sketcher.Constraint("Horizontal", 61, 2, 64, 2),
    Sketcher.Constraint("Horizontal", 59, 2, 66, 2),
    Sketcher.Constraint("Horizontal", 58, 2, 67, 2),
    Sketcher.Constraint("Horizontal", 66, 2, 69, 2),
    Sketcher.Constraint("Horizontal", 65, 2, 70, 2),
    Sketcher.Constraint("Horizontal", 63, 2, 72, 2),
    Sketcher.Constraint("Horizontal", 71, 2, 75, 2),
    Sketcher.Constraint("Horizontal", 42, 2, 77, 2),
    Sketcher.Constraint("Horizontal", 41, 2, 78, 2),
    Sketcher.Constraint("Horizontal", 40, 2, 79, 2),
    Sketcher.Constraint("Horizontal", 34, 2, 81, 2),
    Sketcher.Constraint("Horizontal", 80, 2, 83, 2),
    Sketcher.Constraint("Horizontal", 79, 2, 84, 2),
    Sketcher.Constraint("Horizontal", 78, 2, 85, 2),
    Sketcher.Constraint("Horizontal", 77, 2, 86, 2),
    Sketcher.Constraint("Horizontal", 76, 2, 87, 2),
    Sketcher.Constraint("Vertical", 1, 2, 3, 2),
    Sketcher.Constraint("Vertical", 0, 2, 4, 2),
    Sketcher.Constraint("Vertical", 8, 2, 11, 2),
    Sketcher.Constraint("Vertical", 7, 2, 12, 2),
    Sketcher.Constraint("Vertical", 5, 2, 14, 2),
    Sketcher.Constraint("Vertical", 40, 2, 43, 2),
    Sketcher.Constraint("Vertical", 39, 2, 44, 2),
    Sketcher.Constraint("Vertical", 37, 2, 46, 2),
    Sketcher.Constraint("Vertical", 47, 2, 51, 2),
    Sketcher.Constraint("Vertical", 33, 2, 55, 2),
    Sketcher.Constraint("Vertical", 31, 2, 57, 2),
    Sketcher.Constraint("Vertical", 30, 2, 58, 2),
    Sketcher.Constraint("Vertical", 27, 2, 61, 2),
    Sketcher.Constraint("Vertical", 25, 2, 63, 2),
    Sketcher.Constraint("Vertical", 23, 2, 65, 2),
    Sketcher.Constraint("Vertical", 20, 2, 68, 2),
    Sketcher.Constraint("Vertical", 76, 2, 80, 2),
    Sketcher.Constraint("Equal", 24, 28),
    Sketcher.Constraint("Equal", 21, 31),
    Sketcher.Constraint("Equal", 18, 34),
    Sketcher.Constraint("Equal", 16, 36),
    Sketcher.Constraint("Equal", 14, 38),
    Sketcher.Constraint("Equal", 12, 40),
    Sketcher.Constraint("Equal", 4, 48),
    Sketcher.Constraint("Equal", 55, 71),
    Sketcher.Constraint("Equal", 46, 0),
    Sketcher.Constraint("Equal", 68, 10),
    Sketcher.Constraint("Equal", 7, 13),
    Sketcher.Constraint("Equal", 0, 17),
    Sketcher.Constraint("Equal", 44, 19),
    Sketcher.Constraint("Equal", 52, 54),
    Sketcher.Constraint("Equal", 33, 56),
    Sketcher.Constraint("Equal", 76, 81),
    Sketcher.Constraint("Equal", 11, 20),
    Sketcher.Constraint("Diameter", 74, 4.2),
    Sketcher.Constraint("DistanceX", 6, 1, 6, 2, 2.0),
    Sketcher.Constraint("DistanceX", 16, 1, 16, 2, 5.0),
    Sketcher.Constraint("DistanceX", 18, 2, 18, 1, 1.0),
    Sketcher.Constraint("DistanceX", 26, 1, 26, 2, 15.0),
    Sketcher.Constraint("DistanceX", 75, 1, 75, 2, 4.0),
    Sketcher.Constraint("DistanceY", 7, 1, 7, 2, 3.0),
    Sketcher.Constraint("DistanceY", 15, 2, 15, 1, 7.0),
    Sketcher.Constraint("DistanceX", 24, 2, 24, 1, 3.5),
    Sketcher.Constraint("DistanceX", 53, 2, 53, 1, 6.5),
    Sketcher.Constraint("DistanceX", 21, 1, 21, 2, 5.171572),
    Sketcher.Constraint("DistanceX", -1, 1, 1, 2, 183.334498),
    Sketcher.Constraint("DistanceX", 1, 2, 1, 1, 0.365542),
    Sketcher.Constraint("DistanceX", 8, 1, 8, 2, 0.585786),
    Sketcher.Constraint("DistanceY", 5, 2, 5, 1, 3.631084),
    Sketcher.Constraint("DistanceY", 76, 2, 76, 1, 1.414214),
    Sketcher.Constraint("DistanceX", -1, 1, 74, 3, 193.70004),
    Sketcher.Constraint("DistanceX", -1, 1, 89, 3, 213.70004),
    Sketcher.Constraint("DistanceX", -1, 1, 9, 2, 189.70004),
    Sketcher.Constraint("DistanceY", 9, 2, -1, 1, 4.75552),
    Sketcher.Constraint("DistanceX", -1, 1, 75, 2, 205.70004),
    Sketcher.Constraint("DistanceY", 74, 3, -1, 1, 7.341306),
])
pad2 = doc.addObject("PartDesign::Pad", "Pad001")
body2.addObject(pad2)
pad2.Profile = sketch2
pad2.Length = 1000

doc.recompute()
